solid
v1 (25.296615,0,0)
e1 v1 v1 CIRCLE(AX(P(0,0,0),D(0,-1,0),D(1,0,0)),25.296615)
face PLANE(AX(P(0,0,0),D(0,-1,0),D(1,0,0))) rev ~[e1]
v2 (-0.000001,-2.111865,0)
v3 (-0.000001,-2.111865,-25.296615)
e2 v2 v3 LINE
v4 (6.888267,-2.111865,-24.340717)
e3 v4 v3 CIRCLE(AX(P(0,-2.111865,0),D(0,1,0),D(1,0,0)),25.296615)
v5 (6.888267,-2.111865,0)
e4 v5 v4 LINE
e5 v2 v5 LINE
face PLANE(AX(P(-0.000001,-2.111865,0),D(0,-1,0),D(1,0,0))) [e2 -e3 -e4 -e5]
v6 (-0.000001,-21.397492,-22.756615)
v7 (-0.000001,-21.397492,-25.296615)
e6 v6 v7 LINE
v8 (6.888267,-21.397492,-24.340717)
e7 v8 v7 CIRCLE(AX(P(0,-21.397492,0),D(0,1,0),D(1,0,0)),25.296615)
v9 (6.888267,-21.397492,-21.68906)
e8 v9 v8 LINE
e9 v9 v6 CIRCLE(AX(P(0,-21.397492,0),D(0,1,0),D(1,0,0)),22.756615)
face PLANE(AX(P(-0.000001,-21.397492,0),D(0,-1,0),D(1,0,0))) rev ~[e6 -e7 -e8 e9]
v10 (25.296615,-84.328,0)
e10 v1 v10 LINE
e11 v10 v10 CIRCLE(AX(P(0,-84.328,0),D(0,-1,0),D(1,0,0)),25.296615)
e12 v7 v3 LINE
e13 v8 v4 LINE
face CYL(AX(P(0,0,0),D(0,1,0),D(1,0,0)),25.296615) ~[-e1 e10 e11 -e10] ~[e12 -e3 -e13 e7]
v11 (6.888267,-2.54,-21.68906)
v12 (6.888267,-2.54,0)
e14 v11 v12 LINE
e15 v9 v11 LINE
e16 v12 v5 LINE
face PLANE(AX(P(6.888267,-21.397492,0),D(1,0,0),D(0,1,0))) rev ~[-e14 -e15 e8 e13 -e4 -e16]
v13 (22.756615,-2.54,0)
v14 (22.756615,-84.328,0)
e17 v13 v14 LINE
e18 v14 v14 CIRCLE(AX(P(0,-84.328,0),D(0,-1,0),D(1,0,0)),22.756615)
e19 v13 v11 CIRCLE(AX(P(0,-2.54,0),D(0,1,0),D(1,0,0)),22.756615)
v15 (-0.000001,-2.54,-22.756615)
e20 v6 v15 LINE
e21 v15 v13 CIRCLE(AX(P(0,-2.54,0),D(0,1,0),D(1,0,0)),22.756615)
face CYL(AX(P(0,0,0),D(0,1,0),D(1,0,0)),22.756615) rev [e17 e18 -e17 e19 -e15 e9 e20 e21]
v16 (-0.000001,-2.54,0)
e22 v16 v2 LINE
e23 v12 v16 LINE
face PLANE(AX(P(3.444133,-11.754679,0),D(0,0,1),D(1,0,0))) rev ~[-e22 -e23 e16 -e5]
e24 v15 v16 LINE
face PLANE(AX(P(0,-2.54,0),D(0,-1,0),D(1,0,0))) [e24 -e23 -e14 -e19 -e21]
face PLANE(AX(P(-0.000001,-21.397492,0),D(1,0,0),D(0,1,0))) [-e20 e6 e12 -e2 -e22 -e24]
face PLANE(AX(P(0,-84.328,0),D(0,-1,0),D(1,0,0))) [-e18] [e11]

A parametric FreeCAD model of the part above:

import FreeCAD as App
import Part
import Sketcher
from FreeCAD import Vector
Q = App.Units.Quantity


def faces_at(feature, points):
    """Names of the faces that lie closest to the given points."""
    faces = feature.Shape.Faces
    near = lambda p: min(range(len(faces)), key=lambda i: faces[i].distToShape(Part.Vertex(*p))[0])
    return sorted({f"Face{near(p) + 1}" for p in points})

doc = App.newDocument("Part")
body = doc.addObject("PartDesign::Body", "Body")

# Sketch on XZ plane
sketch1 = body.newObject("Sketcher::SketchObject", "Sketch")
sketch1.AttachmentSupport = (doc.getObject("XZ_Plane"), [""])
sketch1.MapMode = "FlatFace"
sketch1.addGeometry(Part.Circle(Vector(0, 0, 0), Vector(0, 0, 1), 25), False)
sketch1.addConstraint(Sketcher.Constraint("Coincident", 0, 3, -1, 1))
sketch1.addConstraint(Sketcher.Constraint("Diameter", 0, 50.59323))
pad1 = body.newObject("PartDesign::Pad", "Pad")
pad1.Profile = sketch1
pad1.Length = Q("3.32 in")
doc.recompute()

thickness = body.newObject("PartDesign::Thickness", "Thickness")
thickness.Base = (pad1, faces_at(pad1, [(0, -84.328, 0)]))
thickness.Value = Q("0.1 in")
thickness.Reversed = True
thickness.Join = "Arc"

# Sketch on XY plane
sketch2 = body.newObject("Sketcher::SketchObject", "Sketch001")
sketch2.AttachmentSupport = (doc.getObject("XY_Plane"), [""])
sketch2.MapMode = "FlatFace"
sketch2.addGeometry(Part.LineSegment(Vector(0, -2, 0), Vector(0, -21, 0)), False)
sketch2.addGeometry(Part.LineSegment(Vector(0, -21, 0), Vector(7, -21, 0)), False)
sketch2.addGeometry(Part.LineSegment(Vector(7, -21, 0), Vector(7, -2, 0)), False)
sketch2.addGeometry(Part.LineSegment(Vector(7, -2, 0), Vector(0, -2, 0)), False)
sketch2.addConstraint(Sketcher.Constraint("Coincident", 0, 2, 1, 1))
sketch2.addConstraint(Sketcher.Constraint("Coincident", 1, 2, 2, 1))
sketch2.addConstraint(Sketcher.Constraint("Coincident", 2, 2, 3, 1))
sketch2.addConstraint(Sketcher.Constraint("Coincident", 3, 2, 0, 1))
sketch2.addConstraint(Sketcher.Constraint("Vertical", 0))
sketch2.addConstraint(Sketcher.Constraint("Horizontal", 1))
sketch2.addConstraint(Sketcher.Constraint("Vertical", 2))
sketch2.addConstraint(Sketcher.Constraint("Horizontal", 3))
sketch2.addConstraint(Sketcher.Constraint("PointOnObject", 0, 2, -2))
sketch2.addConstraint(Sketcher.Constraint("DistanceX", 1, 1, 1, 2, 6.888267))
sketch2.addConstraint(Sketcher.Constraint("DistanceY", 0, 2, 0, 1, 19.285627))
sketch2.addConstraint(Sketcher.Constraint("DistanceY", 0, 2, -1, 1, 21.397492))
pocket1 = body.newObject("PartDesign::Pocket", "Pocket")
pocket1.Profile = sketch2
pocket1.Length = Q("1 in")

doc.recompute()
